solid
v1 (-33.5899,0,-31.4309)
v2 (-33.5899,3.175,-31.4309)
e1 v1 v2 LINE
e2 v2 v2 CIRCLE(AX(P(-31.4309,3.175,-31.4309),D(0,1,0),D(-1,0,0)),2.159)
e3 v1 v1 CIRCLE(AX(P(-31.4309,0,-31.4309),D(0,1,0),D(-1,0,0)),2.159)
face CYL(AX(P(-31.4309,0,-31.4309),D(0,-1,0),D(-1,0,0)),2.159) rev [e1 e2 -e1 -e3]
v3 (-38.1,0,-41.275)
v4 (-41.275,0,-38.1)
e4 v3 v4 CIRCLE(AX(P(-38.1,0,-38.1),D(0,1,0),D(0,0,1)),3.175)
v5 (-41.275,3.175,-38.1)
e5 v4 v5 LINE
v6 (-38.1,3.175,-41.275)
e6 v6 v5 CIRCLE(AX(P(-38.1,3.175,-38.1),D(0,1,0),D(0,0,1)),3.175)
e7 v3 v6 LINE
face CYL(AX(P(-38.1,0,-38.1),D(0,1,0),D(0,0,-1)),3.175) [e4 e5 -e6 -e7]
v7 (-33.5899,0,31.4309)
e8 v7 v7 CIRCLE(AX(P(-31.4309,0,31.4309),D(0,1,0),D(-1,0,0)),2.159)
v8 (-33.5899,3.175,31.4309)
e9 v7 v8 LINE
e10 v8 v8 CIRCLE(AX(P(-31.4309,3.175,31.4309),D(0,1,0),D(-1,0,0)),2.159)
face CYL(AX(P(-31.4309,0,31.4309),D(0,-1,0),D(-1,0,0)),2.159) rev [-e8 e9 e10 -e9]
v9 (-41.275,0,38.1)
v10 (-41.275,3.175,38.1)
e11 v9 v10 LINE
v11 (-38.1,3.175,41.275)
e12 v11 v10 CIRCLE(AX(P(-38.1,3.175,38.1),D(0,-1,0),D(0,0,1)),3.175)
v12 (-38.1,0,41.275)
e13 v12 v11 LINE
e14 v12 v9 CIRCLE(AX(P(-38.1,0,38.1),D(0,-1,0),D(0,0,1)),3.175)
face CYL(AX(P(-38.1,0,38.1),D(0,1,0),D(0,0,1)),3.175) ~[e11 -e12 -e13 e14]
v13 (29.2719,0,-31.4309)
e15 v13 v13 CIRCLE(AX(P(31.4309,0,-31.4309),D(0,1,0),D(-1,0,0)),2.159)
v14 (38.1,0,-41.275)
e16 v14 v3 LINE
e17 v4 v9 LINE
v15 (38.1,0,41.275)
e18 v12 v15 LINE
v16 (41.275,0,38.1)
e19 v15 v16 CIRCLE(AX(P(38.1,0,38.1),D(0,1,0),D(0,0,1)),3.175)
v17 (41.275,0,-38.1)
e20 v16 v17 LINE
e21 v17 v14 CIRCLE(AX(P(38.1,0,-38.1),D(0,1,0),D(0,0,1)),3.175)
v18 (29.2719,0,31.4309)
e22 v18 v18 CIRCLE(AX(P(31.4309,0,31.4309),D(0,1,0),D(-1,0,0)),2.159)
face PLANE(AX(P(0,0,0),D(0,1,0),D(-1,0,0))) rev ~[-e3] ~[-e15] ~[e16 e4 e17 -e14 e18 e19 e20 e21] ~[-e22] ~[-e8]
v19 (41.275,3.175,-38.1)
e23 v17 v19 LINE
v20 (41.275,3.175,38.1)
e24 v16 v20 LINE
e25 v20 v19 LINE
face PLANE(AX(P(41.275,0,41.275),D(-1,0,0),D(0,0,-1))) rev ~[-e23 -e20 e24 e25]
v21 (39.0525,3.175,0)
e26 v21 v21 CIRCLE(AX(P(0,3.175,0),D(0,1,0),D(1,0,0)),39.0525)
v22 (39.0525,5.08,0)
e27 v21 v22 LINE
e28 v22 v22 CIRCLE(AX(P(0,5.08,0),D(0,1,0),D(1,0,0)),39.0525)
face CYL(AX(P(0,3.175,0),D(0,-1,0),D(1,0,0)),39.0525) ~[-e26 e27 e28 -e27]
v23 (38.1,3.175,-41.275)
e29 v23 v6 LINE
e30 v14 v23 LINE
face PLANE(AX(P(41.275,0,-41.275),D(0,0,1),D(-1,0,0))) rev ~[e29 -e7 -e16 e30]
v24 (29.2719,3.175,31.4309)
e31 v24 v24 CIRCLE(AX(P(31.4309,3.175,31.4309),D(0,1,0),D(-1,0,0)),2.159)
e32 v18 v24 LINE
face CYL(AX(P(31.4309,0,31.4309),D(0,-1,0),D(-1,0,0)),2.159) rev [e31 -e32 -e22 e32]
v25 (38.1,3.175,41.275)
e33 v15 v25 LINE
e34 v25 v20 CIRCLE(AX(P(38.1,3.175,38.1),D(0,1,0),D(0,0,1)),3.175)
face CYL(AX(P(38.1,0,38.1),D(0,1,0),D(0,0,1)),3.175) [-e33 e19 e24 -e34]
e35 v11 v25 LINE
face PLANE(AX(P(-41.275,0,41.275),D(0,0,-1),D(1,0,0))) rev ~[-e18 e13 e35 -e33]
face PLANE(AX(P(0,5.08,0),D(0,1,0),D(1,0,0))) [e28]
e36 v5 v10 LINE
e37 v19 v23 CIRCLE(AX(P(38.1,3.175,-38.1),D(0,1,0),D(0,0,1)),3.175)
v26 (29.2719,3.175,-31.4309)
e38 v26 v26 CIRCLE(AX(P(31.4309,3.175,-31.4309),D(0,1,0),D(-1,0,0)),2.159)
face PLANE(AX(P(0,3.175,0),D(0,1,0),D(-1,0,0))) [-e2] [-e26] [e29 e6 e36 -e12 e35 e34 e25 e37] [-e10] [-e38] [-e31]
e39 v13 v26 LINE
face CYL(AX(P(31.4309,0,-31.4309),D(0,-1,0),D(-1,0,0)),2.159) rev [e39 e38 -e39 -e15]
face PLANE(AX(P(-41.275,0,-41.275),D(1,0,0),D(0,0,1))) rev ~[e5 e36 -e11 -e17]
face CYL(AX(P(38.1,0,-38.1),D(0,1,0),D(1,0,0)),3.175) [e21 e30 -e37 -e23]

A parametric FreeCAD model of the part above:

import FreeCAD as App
import Part
import Sketcher

V = App.Vector
Q = App.Units.Quantity


def edges_at(feature, points):
    """Names of the edges that pass closest to the given points."""
    edges = feature.Shape.Edges
    near = lambda p: min(range(len(edges)), key=lambda i: edges[i].distToShape(Part.Vertex(*p))[0])
    return sorted({f"Edge{near(p) + 1}" for p in points})


def add_polygon(sketch, points):
    """Adds a closed chain of lines whose ends are joined by coincident constraints."""
    first, n = sketch.GeometryCount, len(points)
    for a, b in zip(points, points[1:] + points[:1]):
        sketch.addGeometry(Part.LineSegment(App.Vector(*a, 0), App.Vector(*b, 0)), False)
    for i in range(n):
        sketch.addConstraint(Sketcher.Constraint("Coincident", first + i, 2, first + (i + 1) % n, 1))

doc = App.newDocument("Part")
body = doc.addObject("PartDesign::Body", "Body")

sketch1 = body.newObject("Sketcher::SketchObject", "Sketch")
sketch1.AttachmentSupport = (doc.getObject("XZ_Plane"), [""])
sketch1.MapMode = "FlatFace"
add_polygon(sketch1, [(-41.3, -41.3), (-41.3, 41.3), (41.3, 41.3), (41.3, -41.3)])
sketch1.addGeometry(Part.Circle(V(31.4, -31.4, 0), V(0, 0, 1), 2.2), False)
sketch1.addGeometry(Part.Circle(V(-31.4, -31.4, 0), V(0, 0, 1), 2.2), False)
sketch1.addGeometry(Part.Circle(V(31.4, 31.4, 0), V(0, 0, 1), 2.2), False)
sketch1.addGeometry(Part.Circle(V(-31.4, 31.4, 0), V(0, 0, 1), 2.2), False)
sketch1.addConstraint(Sketcher.Constraint("Vertical", 0))
sketch1.addConstraint(Sketcher.Constraint("Horizontal", 1))
sketch1.addConstraint(Sketcher.Constraint("Vertical", 2))
sketch1.addConstraint(Sketcher.Constraint("Horizontal", 3))
sketch1.addConstraint(Sketcher.Constraint("Equal", 4, 5))
sketch1.addConstraint(Sketcher.Constraint("Equal", 5, 6))
sketch1.addConstraint(Sketcher.Constraint("Equal", 6, 7))
sketch1.addConstraint(Sketcher.Constraint("Symmetric", 5, 3, 6, 3, -1, 1))
sketch1.addConstraint(Sketcher.Constraint("Symmetric", 4, 3, 7, 3, -1, 1))
sketch1.addConstraint(Sketcher.Constraint("Symmetric", 0, 2, 2, 2, -1, 1))
sketch1.addConstraint(Sketcher.Constraint("Symmetric", 4, 3, 5, 3, -2))
sketch1.addConstraint(Sketcher.Constraint("Equal", 3, 0))
sketch1.addConstraint(Sketcher.Constraint("Diameter", 4, Q("0.17 in")))
sketch1.addConstraint(Sketcher.Constraint("DistanceX", 1, 1, 1, 2, Q("3.25 in")))
sketch1.addConstraint(Sketcher.Constraint("DistanceX", -1, 1, 4, 3, Q("31.431 mm")))
sketch1.addConstraint(Sketcher.Constraint("DistanceY", 4, 3, -1, 1, Q("31.431 mm")))
pad1 = body.newObject("PartDesign::Pad", "Pad")
pad1.Profile = sketch1
pad1.Length = Q("0.125 in")
pad1.Reversed = True

sketch2 = body.newObject("Sketcher::SketchObject", "Sketch001")
sketch2.AttachmentSupport = (doc.getObject("XZ_Plane"), [""])
sketch2.MapMode = "FlatFace"
sketch2.AttachmentOffset = App.Placement(V(0, 0, -0.125 * 25.4), App.Rotation())
sketch2.addGeometry(Part.Circle(V(0, 0, 0), V(0, 0, 1), 39), False)
sketch2.addConstraint(Sketcher.Constraint("Coincident", 0, 3, -1, 1))
sketch2.addConstraint(Sketcher.Constraint("Diameter", 0, Q("3.075 in")))
pad2 = body.newObject("PartDesign::Pad", "Pad001")
pad2.Profile = sketch2
pad2.Length = Q("0.075 in")
pad2.Reversed = True
doc.recompute()

fillet = body.newObject("PartDesign::Fillet", "Fillet")
fillet.Base = (pad2, edges_at(pad2, [(41.275, 1.587, 41.275)]))
fillet.Radius = Q("0.125 in")
doc.recompute()

fillet2 = body.newObject("PartDesign::Fillet", "Fillet001")
fillet2.Base = (fillet, edges_at(fillet, [(-41.275, 1.587, 41.275)]))
fillet2.Radius = Q("0.125 in")
doc.recompute()

fillet3 = body.newObject("PartDesign::Fillet", "Fillet002")
fillet3.Base = (fillet2, edges_at(fillet2, [(41.275, 1.587, -41.275)]))
fillet3.Radius = Q("0.125 in")
doc.recompute()

fillet4 = body.newObject("PartDesign::Fillet", "Fillet003")
fillet4.Base = (fillet3, edges_at(fillet3, [(-41.275, 1.587, -41.275)]))
fillet4.Radius = Q("0.125 in")

doc.recompute()
